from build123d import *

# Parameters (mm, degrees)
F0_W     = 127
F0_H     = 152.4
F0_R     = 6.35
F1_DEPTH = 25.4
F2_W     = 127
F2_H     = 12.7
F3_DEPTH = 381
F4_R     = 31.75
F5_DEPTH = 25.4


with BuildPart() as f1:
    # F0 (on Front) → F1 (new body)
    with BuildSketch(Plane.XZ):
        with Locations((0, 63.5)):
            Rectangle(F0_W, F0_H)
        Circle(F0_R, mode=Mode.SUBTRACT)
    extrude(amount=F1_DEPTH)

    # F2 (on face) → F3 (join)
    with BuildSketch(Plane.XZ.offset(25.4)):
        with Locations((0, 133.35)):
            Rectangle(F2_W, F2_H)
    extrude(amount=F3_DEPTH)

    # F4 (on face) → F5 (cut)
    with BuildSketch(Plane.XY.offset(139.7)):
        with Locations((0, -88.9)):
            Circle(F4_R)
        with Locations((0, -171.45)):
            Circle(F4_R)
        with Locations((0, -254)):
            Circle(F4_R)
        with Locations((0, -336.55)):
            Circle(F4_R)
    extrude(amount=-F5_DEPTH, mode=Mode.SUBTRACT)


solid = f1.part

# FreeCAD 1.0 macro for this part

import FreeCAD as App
import Part
import Sketcher
Q = App.Units.Quantity


def add_polygon(sketch, points):
    """Adds a closed chain of lines whose ends are joined by coincident constraints."""
    first, n = sketch.GeometryCount, len(points)
    for a, b in zip(points, points[1:] + points[:1]):
        sketch.addGeometry(Part.LineSegment(App.Vector(*a, 0), App.Vector(*b, 0)), False)
    for i in range(n):
        sketch.addConstraint(Sketcher.Constraint("Coincident", first + i, 2, first + (i + 1) % n, 1))

doc = App.newDocument("Part")
body = doc.addObject("PartDesign::Body", "Body")

sketch1 = body.newObject("Sketcher::SketchObject", "Sketch")
sketch1.AttachmentSupport = (doc.getObject("XZ_Plane"), [""])
sketch1.MapMode = "FlatFace"
add_polygon(sketch1, [(-64, 140), (-64, -13), (64, -13), (64, 140)])
sketch1.addGeometry(Part.Circle(App.Vector(0, 0, 0), App.Vector(0, 0, 1), 6), False)
sketch1.addConstraint(Sketcher.Constraint("Vertical", 0))
sketch1.addConstraint(Sketcher.Constraint("Horizontal", 1))
sketch1.addConstraint(Sketcher.Constraint("Vertical", 2))
sketch1.addConstraint(Sketcher.Constraint("Horizontal", 3))
sketch1.addConstraint(Sketcher.Constraint("Coincident", 4, 3, -1, 1))
sketch1.addConstraint(Sketcher.Constraint("Diameter", 4, Q("0.5 in")))
sketch1.addConstraint(Sketcher.Constraint("DistanceX", 1, 1, 1, 2, Q("5 in")))
sketch1.addConstraint(Sketcher.Constraint("DistanceY", 0, 2, 0, 1, Q("6 in")))
sketch1.addConstraint(Sketcher.Constraint("DistanceX", 0, 2, -1, 1, Q("2.5 in")))
sketch1.addConstraint(Sketcher.Constraint("DistanceY", 0, 2, -1, 1, Q("0.5 in")))
pad1 = body.newObject("PartDesign::Pad", "Pad")
pad1.Profile = sketch1
pad1.Length = Q("1 in")

sketch2 = body.newObject("Sketcher::SketchObject", "Sketch001")
sketch2.AttachmentSupport = (doc.getObject("XZ_Plane"), [""])
sketch2.MapMode = "FlatFace"
sketch2.AttachmentOffset = App.Placement(App.Vector(0, 0, 1 * 25.4), App.Rotation())
add_polygon(sketch2, [(-64, 140), (-64, 127), (64, 127), (64, 140)])
sketch2.addConstraint(Sketcher.Constraint("Vertical", 0))
sketch2.addConstraint(Sketcher.Constraint("Horizontal", 1))
sketch2.addConstraint(Sketcher.Constraint("Vertical", 2))
sketch2.addConstraint(Sketcher.Constraint("Horizontal", 3))
sketch2.addConstraint(Sketcher.Constraint("DistanceX", 1, 1, 1, 2, Q("5 in")))
sketch2.addConstraint(Sketcher.Constraint("DistanceY", 0, 2, 0, 1, Q("0.5 in")))
sketch2.addConstraint(Sketcher.Constraint("DistanceY", -1, 1, 0, 2, Q("5 in")))
sketch2.addConstraint(Sketcher.Constraint("DistanceX", 0, 2, -1, 1, Q("2.5 in")))
pad2 = body.newObject("PartDesign::Pad", "Pad001")
pad2.Profile = sketch2
pad2.Length = Q("15 in")

sketch3 = body.newObject("Sketcher::SketchObject", "Sketch002")
sketch3.AttachmentSupport = (doc.getObject("XY_Plane"), [""])
sketch3.MapMode = "FlatFace"
sketch3.AttachmentOffset = App.Placement(App.Vector(0, 0, 5.5 * 25.4), App.Rotation())
sketch3.addGeometry(Part.Circle(App.Vector(0, -89, 0), App.Vector(0, 0, 1), 32), False)
sketch3.addGeometry(Part.Circle(App.Vector(0, -171, 0), App.Vector(0, 0, 1), 32), False)
sketch3.addGeometry(Part.Circle(App.Vector(0, -254, 0), App.Vector(0, 0, 1), 32), False)
sketch3.addGeometry(Part.Circle(App.Vector(0, -337, 0), App.Vector(0, 0, 1), 32), False)
sketch3.addConstraint(Sketcher.Constraint("Equal", 0, 1))
sketch3.addConstraint(Sketcher.Constraint("Equal", 1, 2))
sketch3.addConstraint(Sketcher.Constraint("Equal", 2, 3))
sketch3.addConstraint(Sketcher.Constraint("PointOnObject", 0, 3, -2))
sketch3.addConstraint(Sketcher.Constraint("PointOnObject", 1, 3, -2))
sketch3.addConstraint(Sketcher.Constraint("PointOnObject", 2, 3, -2))
sketch3.addConstraint(Sketcher.Constraint("PointOnObject", 3, 3, -2))
sketch3.addConstraint(Sketcher.Constraint("Diameter", 0, Q("2.5 in")))
sketch3.addConstraint(Sketcher.Constraint("DistanceY", 2, 3, -1, 1, Q("10 in")))
sketch3.addConstraint(Sketcher.Constraint("DistanceY", 0, 3, -1, 1, Q("3.5 in")))
sketch3.addConstraint(Sketcher.Constraint("DistanceY", 3, 3, 1, 3, Q("6.5 in")))
sketch3.addConstraint(Sketcher.Constraint("DistanceY", 1, 3, -1, 1, Q("6.75 in")))
pocket1 = body.newObject("PartDesign::Pocket", "Pocket")
pocket1.Profile = sketch3
pocket1.Length = Q("1 in")

doc.recompute()
